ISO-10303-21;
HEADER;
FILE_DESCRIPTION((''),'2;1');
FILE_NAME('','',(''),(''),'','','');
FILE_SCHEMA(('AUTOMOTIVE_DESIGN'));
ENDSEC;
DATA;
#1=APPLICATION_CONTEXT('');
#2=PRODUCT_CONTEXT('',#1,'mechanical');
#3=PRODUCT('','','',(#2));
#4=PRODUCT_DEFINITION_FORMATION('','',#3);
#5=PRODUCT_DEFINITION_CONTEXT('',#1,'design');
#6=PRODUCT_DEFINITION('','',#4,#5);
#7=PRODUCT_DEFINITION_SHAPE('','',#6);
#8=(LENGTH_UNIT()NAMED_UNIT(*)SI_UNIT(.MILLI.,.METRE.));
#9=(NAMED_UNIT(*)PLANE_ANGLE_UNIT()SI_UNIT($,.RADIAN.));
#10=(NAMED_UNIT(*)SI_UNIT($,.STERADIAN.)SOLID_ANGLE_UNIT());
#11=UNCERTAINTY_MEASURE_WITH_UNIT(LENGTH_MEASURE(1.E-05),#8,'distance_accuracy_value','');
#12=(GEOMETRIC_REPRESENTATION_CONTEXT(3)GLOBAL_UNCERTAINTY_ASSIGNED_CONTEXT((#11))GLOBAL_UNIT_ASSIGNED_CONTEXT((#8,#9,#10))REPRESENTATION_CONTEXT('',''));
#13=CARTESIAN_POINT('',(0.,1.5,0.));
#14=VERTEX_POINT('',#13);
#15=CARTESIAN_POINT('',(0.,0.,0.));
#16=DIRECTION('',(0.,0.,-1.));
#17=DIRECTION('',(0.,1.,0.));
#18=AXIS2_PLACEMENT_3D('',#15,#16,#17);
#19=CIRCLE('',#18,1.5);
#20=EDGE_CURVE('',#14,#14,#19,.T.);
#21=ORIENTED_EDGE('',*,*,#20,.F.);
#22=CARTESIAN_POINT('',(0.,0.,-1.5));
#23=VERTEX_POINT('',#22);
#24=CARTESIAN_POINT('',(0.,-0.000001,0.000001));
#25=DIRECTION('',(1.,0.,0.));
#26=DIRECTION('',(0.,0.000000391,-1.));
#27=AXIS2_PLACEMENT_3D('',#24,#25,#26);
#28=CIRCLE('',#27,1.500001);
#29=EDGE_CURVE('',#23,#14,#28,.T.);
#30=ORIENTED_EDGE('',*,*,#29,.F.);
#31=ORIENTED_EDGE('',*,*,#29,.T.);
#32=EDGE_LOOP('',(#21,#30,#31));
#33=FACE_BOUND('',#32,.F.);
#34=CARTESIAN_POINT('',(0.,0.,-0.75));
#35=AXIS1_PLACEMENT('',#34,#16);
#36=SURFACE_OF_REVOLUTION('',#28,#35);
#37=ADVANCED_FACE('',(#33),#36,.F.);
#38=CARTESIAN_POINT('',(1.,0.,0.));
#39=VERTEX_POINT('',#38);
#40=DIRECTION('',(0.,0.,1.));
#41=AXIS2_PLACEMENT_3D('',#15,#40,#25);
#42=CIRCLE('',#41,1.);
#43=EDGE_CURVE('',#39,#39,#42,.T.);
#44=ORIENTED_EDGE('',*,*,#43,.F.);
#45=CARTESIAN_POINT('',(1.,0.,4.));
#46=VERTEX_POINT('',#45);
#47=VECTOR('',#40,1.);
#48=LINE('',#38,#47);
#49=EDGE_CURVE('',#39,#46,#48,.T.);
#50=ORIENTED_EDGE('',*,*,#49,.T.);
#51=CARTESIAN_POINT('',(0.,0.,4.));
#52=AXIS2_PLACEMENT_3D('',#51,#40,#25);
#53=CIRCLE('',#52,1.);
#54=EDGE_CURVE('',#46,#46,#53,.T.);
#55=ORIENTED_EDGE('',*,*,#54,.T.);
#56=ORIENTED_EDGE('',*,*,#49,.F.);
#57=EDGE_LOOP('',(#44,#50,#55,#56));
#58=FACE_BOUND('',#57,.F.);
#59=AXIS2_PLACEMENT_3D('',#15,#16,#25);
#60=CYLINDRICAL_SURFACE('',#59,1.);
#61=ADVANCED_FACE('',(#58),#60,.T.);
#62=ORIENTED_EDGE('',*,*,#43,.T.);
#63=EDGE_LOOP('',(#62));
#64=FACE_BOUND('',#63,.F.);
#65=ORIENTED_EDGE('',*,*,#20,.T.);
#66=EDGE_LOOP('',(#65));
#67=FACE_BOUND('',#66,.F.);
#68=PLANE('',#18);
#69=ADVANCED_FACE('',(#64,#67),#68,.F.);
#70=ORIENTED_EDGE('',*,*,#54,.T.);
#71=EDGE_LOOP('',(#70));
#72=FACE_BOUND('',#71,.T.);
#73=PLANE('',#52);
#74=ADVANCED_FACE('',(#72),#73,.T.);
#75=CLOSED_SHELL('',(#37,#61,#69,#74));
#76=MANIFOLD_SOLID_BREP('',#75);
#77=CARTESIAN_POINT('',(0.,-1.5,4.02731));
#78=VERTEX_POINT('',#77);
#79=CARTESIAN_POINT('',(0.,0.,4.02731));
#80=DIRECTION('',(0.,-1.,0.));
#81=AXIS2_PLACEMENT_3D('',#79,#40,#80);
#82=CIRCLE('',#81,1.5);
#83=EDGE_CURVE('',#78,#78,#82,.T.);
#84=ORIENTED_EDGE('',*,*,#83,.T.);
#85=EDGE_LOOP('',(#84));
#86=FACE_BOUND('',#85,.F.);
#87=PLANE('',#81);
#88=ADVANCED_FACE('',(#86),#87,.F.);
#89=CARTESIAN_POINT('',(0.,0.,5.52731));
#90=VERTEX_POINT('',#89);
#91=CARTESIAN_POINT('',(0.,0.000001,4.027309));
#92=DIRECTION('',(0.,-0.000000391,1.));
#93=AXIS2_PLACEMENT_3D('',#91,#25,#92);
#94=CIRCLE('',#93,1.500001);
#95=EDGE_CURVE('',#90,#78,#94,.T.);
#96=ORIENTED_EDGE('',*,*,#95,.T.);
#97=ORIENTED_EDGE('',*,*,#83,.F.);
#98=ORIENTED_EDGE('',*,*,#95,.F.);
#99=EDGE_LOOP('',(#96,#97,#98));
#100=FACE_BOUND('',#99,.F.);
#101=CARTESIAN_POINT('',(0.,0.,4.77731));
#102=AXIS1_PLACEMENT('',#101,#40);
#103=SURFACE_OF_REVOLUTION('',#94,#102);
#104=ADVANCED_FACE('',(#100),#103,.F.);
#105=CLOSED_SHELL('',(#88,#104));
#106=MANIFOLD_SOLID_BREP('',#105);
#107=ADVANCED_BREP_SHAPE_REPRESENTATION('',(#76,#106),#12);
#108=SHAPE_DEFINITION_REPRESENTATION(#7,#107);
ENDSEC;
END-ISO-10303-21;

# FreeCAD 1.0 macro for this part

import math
import FreeCAD as App
import Part
import Sketcher
Q = App.Units.Quantity

doc = App.newDocument("Part")
body = doc.addObject("PartDesign::Body", "Body")

# Sketch on XY plane
sketch1 = body.newObject("Sketcher::SketchObject", "Sketch")
sketch1.AttachmentSupport = (doc.getObject("XY_Plane"), [""])
sketch1.MapMode = "FlatFace"
sketch1.addGeometry(Part.Circle(App.Vector(0, 0, 0), App.Vector(0, 0, 1), 1), False)
sketch1.addConstraint([
    Sketcher.Constraint("Coincident", 0, 3, -1, 1),
    Sketcher.Constraint("Diameter", 0, Q("2 mm")),
])
pad1 = body.newObject("PartDesign::Pad", "Pad")
pad1.Profile = sketch1
pad1.Length = 4

# Sketch on YZ plane
sketch2 = body.newObject("Sketcher::SketchObject", "Sketch001")
sketch2.AttachmentSupport = (doc.getObject("YZ_Plane"), [""])
sketch2.MapMode = "FlatFace"
sketch2.addGeometry([
    Part.LineSegment(App.Vector(0, 0, 0), App.Vector(0, -1.5, 0)),
    Part.ArcOfCircle(Part.Circle(App.Vector(0, 0, 0), App.Vector(0, 0, 1), 1.5), math.radians(-90), math.radians(0)),
    Part.LineSegment(App.Vector(1.5, 0, 0), App.Vector(0, 0, 0)),
], False)
sketch2.addConstraint([
    Sketcher.Constraint("Coincident", 0, 2, 1, 1),
    Sketcher.Constraint("Coincident", 1, 2, 2, 1),
    Sketcher.Constraint("Coincident", 2, 2, 0, 1),
    Sketcher.Constraint("Vertical", 0),
    Sketcher.Constraint("Horizontal", 2),
    Sketcher.Constraint("Coincident", 1, 3, -1, 1),
    Sketcher.Constraint("Coincident", 2, 2, -1, 1),
    Sketcher.Constraint("Radius", 1, Q("1.500001 mm")),
])
revolution = body.newObject("PartDesign::Revolution", "Revolution")
revolution.Profile = sketch2
revolution.ReferenceAxis = (sketch2, ["V_Axis"])
revolution.Angle = 360
body2 = doc.addObject("PartDesign::Body", "Body001")

# Sketch on YZ plane
sketch3 = body2.newObject("Sketcher::SketchObject", "Sketch002")
sketch3.AttachmentSupport = (doc.getObject("YZ_Plane001"), [""])
sketch3.MapMode = "FlatFace"
sketch3.addGeometry([
    Part.LineSegment(App.Vector(0, 4, 0), App.Vector(0, 5.5, 0)),
    Part.ArcOfCircle(Part.Circle(App.Vector(0, 4, 0), App.Vector(0, 0, 1), 1.5), math.radians(90), math.radians(180)),
    Part.LineSegment(App.Vector(-1.5, 4, 0), App.Vector(0, 4, 0)),
], False)
sketch3.addConstraint([
    Sketcher.Constraint("Coincident", 0, 2, 1, 1),
    Sketcher.Constraint("Coincident", 1, 2, 2, 1),
    Sketcher.Constraint("Coincident", 2, 2, 0, 1),
    Sketcher.Constraint("Vertical", 0),
    Sketcher.Constraint("Horizontal", 2),
    Sketcher.Constraint("Coincident", 2, 2, 1, 3),
    Sketcher.Constraint("PointOnObject", 1, 3, -2),
    Sketcher.Constraint("Radius", 1, Q("1.500001 mm")),
    Sketcher.Constraint("DistanceY", -1, 1, 1, 3, Q("4.027309 mm")),
])
revolution2 = body2.newObject("PartDesign::Revolution", "Revolution001")
revolution2.Profile = sketch3
revolution2.ReferenceAxis = (sketch3, ["V_Axis"])
revolution2.Angle = 360

doc.recompute()
